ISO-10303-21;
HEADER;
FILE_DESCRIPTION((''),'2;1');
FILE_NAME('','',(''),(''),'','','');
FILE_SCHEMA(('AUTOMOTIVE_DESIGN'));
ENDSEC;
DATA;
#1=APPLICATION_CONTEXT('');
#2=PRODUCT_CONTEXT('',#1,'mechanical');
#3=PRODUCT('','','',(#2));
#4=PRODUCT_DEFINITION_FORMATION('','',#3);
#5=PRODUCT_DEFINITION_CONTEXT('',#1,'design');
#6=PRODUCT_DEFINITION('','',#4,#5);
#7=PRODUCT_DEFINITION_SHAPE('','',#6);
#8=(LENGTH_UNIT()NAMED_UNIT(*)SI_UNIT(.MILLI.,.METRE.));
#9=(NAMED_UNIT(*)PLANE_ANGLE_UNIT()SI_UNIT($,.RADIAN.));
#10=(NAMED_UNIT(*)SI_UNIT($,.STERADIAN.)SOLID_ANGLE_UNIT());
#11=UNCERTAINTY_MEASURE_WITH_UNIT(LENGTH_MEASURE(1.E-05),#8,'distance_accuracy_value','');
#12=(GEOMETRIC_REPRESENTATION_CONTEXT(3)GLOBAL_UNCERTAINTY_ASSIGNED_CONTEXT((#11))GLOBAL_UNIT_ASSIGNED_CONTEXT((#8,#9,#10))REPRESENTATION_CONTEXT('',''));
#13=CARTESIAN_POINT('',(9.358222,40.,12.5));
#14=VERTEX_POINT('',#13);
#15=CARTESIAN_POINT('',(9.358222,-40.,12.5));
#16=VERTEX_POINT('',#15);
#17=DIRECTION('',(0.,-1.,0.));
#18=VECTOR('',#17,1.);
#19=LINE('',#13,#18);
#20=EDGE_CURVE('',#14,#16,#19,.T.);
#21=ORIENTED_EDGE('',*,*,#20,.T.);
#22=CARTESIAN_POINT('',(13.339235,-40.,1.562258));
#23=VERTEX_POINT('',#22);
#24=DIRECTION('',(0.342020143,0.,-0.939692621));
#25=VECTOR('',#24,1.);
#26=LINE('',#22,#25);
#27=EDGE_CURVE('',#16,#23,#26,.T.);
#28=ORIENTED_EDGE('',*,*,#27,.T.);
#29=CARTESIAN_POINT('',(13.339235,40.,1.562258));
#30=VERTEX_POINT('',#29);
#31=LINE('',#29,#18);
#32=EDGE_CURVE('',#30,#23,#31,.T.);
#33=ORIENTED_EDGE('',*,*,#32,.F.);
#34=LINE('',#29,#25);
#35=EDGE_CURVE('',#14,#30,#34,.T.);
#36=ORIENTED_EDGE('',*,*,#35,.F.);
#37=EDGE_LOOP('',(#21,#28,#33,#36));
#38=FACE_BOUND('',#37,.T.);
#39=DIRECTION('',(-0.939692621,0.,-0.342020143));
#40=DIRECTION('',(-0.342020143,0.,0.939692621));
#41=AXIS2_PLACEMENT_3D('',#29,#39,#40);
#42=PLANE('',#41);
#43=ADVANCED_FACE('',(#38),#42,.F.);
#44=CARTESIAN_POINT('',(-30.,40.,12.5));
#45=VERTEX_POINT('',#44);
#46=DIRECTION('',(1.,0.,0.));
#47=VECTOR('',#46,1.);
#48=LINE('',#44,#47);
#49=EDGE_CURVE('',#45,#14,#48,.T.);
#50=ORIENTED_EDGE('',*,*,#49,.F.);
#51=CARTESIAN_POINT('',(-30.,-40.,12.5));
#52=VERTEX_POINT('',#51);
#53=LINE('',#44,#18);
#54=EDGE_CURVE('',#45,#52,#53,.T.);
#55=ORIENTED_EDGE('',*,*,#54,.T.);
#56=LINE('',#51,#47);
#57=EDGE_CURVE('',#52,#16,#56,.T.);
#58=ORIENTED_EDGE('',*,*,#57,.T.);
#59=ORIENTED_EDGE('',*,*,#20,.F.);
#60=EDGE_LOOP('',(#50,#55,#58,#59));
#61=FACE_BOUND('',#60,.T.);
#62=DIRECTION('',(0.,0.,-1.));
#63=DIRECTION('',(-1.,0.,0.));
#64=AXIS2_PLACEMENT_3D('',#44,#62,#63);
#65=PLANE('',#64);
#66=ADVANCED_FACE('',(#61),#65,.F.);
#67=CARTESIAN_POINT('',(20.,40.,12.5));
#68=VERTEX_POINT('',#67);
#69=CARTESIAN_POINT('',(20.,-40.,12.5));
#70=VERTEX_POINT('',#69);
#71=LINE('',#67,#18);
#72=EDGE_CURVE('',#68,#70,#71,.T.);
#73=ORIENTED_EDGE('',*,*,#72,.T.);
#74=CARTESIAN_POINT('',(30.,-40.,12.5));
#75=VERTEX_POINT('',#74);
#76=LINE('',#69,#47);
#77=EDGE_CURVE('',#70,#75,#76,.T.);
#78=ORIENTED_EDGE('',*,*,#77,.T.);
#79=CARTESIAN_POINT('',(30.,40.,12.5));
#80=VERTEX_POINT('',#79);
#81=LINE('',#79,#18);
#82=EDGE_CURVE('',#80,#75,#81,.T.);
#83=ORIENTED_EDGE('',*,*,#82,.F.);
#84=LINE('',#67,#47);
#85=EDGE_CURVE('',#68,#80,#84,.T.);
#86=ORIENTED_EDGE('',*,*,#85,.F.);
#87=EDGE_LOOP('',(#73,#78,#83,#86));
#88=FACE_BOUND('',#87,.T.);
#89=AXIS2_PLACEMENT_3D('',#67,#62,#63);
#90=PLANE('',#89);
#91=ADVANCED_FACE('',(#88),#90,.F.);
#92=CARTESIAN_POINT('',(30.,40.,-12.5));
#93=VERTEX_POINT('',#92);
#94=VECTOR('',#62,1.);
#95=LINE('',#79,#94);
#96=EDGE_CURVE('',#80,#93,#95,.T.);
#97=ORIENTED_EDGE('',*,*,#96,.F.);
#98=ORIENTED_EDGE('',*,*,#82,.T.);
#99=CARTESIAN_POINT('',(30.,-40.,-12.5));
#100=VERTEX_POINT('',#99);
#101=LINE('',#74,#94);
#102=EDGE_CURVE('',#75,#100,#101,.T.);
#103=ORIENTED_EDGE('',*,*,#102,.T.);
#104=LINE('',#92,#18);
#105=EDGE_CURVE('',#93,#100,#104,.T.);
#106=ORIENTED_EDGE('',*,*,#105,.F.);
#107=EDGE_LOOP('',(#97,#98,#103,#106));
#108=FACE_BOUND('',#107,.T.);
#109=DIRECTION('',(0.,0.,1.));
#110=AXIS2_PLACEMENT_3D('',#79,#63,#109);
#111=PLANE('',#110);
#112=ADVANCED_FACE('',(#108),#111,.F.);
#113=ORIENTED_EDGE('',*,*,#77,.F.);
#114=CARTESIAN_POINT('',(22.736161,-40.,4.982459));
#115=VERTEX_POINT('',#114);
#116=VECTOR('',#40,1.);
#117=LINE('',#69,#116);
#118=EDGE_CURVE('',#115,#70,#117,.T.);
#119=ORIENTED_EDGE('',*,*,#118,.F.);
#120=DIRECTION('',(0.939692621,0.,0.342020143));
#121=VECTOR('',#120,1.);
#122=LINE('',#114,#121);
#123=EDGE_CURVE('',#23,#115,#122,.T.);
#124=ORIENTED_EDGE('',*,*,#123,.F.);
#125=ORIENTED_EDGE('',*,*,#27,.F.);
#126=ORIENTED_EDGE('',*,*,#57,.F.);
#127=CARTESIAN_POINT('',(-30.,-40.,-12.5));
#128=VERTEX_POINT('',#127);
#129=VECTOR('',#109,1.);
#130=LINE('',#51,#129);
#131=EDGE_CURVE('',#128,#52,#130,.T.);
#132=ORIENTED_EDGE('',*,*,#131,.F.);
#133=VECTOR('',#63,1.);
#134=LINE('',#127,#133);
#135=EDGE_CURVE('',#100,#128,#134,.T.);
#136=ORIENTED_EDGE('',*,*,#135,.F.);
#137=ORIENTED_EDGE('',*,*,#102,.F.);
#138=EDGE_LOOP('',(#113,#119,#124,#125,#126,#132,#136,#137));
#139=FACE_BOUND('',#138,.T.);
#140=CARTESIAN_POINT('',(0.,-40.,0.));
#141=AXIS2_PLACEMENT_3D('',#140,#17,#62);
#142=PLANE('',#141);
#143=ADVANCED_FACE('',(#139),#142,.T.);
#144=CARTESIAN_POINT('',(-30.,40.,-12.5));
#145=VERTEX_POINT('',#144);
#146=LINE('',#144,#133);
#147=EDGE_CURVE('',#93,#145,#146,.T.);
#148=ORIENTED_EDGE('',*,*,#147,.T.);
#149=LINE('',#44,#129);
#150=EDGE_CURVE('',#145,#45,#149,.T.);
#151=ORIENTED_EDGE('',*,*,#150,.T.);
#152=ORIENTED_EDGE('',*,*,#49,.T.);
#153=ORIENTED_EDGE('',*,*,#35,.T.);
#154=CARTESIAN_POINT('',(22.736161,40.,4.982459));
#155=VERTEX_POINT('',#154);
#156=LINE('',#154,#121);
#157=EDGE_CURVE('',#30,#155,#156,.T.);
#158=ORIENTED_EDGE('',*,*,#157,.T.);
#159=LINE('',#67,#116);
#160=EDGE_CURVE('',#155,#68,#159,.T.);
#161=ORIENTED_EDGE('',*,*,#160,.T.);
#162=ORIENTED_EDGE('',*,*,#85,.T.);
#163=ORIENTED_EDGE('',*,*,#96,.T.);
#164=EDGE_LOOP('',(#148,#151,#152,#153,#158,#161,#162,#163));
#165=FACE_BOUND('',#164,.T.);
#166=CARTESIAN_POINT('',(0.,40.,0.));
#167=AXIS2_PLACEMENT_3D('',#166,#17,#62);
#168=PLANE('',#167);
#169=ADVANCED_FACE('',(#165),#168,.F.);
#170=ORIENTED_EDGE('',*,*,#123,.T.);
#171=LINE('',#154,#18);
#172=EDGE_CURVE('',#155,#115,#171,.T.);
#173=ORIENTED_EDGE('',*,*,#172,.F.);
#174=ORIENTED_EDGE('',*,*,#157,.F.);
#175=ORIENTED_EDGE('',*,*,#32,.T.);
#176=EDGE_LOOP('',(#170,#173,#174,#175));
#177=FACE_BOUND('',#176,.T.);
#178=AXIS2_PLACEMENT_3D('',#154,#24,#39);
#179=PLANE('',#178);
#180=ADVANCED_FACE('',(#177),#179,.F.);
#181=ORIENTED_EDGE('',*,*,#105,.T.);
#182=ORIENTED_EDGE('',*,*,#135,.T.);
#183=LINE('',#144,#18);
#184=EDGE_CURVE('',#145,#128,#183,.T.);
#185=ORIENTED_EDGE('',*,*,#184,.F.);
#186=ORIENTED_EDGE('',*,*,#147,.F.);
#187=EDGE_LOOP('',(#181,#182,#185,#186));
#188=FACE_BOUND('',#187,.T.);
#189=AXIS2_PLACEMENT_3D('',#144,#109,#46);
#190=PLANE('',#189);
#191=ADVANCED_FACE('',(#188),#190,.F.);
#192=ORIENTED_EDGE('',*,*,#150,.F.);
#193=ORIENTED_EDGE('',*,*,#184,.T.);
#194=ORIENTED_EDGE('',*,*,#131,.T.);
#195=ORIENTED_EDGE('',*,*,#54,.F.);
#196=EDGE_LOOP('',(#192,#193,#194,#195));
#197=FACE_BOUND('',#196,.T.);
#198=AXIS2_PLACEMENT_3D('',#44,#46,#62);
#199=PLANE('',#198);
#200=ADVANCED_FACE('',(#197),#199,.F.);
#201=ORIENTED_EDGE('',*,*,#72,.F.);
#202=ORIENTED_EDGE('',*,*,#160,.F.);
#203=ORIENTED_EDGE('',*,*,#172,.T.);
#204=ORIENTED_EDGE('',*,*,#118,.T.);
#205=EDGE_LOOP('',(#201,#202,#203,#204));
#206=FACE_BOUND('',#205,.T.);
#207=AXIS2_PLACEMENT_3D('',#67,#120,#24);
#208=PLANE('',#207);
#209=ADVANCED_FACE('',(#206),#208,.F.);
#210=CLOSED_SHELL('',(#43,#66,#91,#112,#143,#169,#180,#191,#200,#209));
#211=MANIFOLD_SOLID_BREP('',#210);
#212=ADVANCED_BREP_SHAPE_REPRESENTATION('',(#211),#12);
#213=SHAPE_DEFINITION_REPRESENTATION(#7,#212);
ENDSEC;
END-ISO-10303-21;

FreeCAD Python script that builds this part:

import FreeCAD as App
import Part
import Sketcher

V = App.Vector
Q = App.Units.Quantity

doc = App.newDocument("Part")
body = doc.addObject("PartDesign::Body", "Body")

# Sketch on XZ plane
sketch1 = body.newObject("Sketcher::SketchObject", "Sketch")
sketch1.AttachmentSupport = (doc.getObject("XZ_Plane"), [""])
sketch1.MapMode = "FlatFace"
sketch1.addGeometry(Part.LineSegment(V(23, 5, 0), V(20, 12, 0)), False)
sketch1.addGeometry(Part.LineSegment(V(20, 12, 0), V(30, 12, 0)), False)
sketch1.addGeometry(Part.LineSegment(V(30, 12, 0), V(30, -12, 0)), False)
sketch1.addGeometry(Part.LineSegment(V(30, -12, 0), V(-30, -12, 0)), False)
sketch1.addGeometry(Part.LineSegment(V(-30, -12, 0), V(-30, 12, 0)), False)
sketch1.addGeometry(Part.LineSegment(V(-30, 12, 0), V(9, 12, 0)), False)
sketch1.addGeometry(Part.LineSegment(V(9, 12, 0), V(13, 2, 0)), False)
sketch1.addGeometry(Part.LineSegment(V(13, 2, 0), V(23, 5, 0)), False)
sketch1.addConstraint(Sketcher.Constraint("Coincident", 0, 2, 1, 1))
sketch1.addConstraint(Sketcher.Constraint("Coincident", 1, 2, 2, 1))
sketch1.addConstraint(Sketcher.Constraint("Coincident", 2, 2, 3, 1))
sketch1.addConstraint(Sketcher.Constraint("Coincident", 3, 2, 4, 1))
sketch1.addConstraint(Sketcher.Constraint("Coincident", 4, 2, 5, 1))
sketch1.addConstraint(Sketcher.Constraint("Coincident", 5, 2, 6, 1))
sketch1.addConstraint(Sketcher.Constraint("Coincident", 6, 2, 7, 1))
sketch1.addConstraint(Sketcher.Constraint("Coincident", 7, 2, 0, 1))
sketch1.addConstraint(Sketcher.Constraint("Horizontal", 1))
sketch1.addConstraint(Sketcher.Constraint("Vertical", 2))
sketch1.addConstraint(Sketcher.Constraint("Horizontal", 3))
sketch1.addConstraint(Sketcher.Constraint("Vertical", 4))
sketch1.addConstraint(Sketcher.Constraint("Horizontal", 5))
sketch1.addConstraint(Sketcher.Constraint("Symmetric", 1, 2, 3, 2, -1, 1))
sketch1.addConstraint(Sketcher.Constraint("Parallel", 0, 6))
sketch1.addConstraint(Sketcher.Constraint("Perpendicular", 6, 7))
sketch1.addConstraint(Sketcher.Constraint("Horizontal", 1, 2, 4, 2))
sketch1.addConstraint(Sketcher.Constraint("DistanceX", 1, 1, 1, 2, Q("10 mm")))
sketch1.addConstraint(Sketcher.Constraint("DistanceX", 3, 2, 3, 1, Q("60 mm")))
sketch1.addConstraint(Sketcher.Constraint("DistanceY", 2, 2, 2, 1, Q("25 mm")))
sketch1.addConstraint(Sketcher.Constraint("Angle", 0, Q("110 deg")))
sketch1.addConstraint(Sketcher.Constraint("Distance", 0, Q("8 mm")))
sketch1.addConstraint(Sketcher.Constraint("Distance", 7, Q("10 mm")))
pad1 = body.newObject("PartDesign::Pad", "Pad")
pad1.Profile = sketch1
pad1.Length = 80
pad1.Midplane = True

doc.recompute()
